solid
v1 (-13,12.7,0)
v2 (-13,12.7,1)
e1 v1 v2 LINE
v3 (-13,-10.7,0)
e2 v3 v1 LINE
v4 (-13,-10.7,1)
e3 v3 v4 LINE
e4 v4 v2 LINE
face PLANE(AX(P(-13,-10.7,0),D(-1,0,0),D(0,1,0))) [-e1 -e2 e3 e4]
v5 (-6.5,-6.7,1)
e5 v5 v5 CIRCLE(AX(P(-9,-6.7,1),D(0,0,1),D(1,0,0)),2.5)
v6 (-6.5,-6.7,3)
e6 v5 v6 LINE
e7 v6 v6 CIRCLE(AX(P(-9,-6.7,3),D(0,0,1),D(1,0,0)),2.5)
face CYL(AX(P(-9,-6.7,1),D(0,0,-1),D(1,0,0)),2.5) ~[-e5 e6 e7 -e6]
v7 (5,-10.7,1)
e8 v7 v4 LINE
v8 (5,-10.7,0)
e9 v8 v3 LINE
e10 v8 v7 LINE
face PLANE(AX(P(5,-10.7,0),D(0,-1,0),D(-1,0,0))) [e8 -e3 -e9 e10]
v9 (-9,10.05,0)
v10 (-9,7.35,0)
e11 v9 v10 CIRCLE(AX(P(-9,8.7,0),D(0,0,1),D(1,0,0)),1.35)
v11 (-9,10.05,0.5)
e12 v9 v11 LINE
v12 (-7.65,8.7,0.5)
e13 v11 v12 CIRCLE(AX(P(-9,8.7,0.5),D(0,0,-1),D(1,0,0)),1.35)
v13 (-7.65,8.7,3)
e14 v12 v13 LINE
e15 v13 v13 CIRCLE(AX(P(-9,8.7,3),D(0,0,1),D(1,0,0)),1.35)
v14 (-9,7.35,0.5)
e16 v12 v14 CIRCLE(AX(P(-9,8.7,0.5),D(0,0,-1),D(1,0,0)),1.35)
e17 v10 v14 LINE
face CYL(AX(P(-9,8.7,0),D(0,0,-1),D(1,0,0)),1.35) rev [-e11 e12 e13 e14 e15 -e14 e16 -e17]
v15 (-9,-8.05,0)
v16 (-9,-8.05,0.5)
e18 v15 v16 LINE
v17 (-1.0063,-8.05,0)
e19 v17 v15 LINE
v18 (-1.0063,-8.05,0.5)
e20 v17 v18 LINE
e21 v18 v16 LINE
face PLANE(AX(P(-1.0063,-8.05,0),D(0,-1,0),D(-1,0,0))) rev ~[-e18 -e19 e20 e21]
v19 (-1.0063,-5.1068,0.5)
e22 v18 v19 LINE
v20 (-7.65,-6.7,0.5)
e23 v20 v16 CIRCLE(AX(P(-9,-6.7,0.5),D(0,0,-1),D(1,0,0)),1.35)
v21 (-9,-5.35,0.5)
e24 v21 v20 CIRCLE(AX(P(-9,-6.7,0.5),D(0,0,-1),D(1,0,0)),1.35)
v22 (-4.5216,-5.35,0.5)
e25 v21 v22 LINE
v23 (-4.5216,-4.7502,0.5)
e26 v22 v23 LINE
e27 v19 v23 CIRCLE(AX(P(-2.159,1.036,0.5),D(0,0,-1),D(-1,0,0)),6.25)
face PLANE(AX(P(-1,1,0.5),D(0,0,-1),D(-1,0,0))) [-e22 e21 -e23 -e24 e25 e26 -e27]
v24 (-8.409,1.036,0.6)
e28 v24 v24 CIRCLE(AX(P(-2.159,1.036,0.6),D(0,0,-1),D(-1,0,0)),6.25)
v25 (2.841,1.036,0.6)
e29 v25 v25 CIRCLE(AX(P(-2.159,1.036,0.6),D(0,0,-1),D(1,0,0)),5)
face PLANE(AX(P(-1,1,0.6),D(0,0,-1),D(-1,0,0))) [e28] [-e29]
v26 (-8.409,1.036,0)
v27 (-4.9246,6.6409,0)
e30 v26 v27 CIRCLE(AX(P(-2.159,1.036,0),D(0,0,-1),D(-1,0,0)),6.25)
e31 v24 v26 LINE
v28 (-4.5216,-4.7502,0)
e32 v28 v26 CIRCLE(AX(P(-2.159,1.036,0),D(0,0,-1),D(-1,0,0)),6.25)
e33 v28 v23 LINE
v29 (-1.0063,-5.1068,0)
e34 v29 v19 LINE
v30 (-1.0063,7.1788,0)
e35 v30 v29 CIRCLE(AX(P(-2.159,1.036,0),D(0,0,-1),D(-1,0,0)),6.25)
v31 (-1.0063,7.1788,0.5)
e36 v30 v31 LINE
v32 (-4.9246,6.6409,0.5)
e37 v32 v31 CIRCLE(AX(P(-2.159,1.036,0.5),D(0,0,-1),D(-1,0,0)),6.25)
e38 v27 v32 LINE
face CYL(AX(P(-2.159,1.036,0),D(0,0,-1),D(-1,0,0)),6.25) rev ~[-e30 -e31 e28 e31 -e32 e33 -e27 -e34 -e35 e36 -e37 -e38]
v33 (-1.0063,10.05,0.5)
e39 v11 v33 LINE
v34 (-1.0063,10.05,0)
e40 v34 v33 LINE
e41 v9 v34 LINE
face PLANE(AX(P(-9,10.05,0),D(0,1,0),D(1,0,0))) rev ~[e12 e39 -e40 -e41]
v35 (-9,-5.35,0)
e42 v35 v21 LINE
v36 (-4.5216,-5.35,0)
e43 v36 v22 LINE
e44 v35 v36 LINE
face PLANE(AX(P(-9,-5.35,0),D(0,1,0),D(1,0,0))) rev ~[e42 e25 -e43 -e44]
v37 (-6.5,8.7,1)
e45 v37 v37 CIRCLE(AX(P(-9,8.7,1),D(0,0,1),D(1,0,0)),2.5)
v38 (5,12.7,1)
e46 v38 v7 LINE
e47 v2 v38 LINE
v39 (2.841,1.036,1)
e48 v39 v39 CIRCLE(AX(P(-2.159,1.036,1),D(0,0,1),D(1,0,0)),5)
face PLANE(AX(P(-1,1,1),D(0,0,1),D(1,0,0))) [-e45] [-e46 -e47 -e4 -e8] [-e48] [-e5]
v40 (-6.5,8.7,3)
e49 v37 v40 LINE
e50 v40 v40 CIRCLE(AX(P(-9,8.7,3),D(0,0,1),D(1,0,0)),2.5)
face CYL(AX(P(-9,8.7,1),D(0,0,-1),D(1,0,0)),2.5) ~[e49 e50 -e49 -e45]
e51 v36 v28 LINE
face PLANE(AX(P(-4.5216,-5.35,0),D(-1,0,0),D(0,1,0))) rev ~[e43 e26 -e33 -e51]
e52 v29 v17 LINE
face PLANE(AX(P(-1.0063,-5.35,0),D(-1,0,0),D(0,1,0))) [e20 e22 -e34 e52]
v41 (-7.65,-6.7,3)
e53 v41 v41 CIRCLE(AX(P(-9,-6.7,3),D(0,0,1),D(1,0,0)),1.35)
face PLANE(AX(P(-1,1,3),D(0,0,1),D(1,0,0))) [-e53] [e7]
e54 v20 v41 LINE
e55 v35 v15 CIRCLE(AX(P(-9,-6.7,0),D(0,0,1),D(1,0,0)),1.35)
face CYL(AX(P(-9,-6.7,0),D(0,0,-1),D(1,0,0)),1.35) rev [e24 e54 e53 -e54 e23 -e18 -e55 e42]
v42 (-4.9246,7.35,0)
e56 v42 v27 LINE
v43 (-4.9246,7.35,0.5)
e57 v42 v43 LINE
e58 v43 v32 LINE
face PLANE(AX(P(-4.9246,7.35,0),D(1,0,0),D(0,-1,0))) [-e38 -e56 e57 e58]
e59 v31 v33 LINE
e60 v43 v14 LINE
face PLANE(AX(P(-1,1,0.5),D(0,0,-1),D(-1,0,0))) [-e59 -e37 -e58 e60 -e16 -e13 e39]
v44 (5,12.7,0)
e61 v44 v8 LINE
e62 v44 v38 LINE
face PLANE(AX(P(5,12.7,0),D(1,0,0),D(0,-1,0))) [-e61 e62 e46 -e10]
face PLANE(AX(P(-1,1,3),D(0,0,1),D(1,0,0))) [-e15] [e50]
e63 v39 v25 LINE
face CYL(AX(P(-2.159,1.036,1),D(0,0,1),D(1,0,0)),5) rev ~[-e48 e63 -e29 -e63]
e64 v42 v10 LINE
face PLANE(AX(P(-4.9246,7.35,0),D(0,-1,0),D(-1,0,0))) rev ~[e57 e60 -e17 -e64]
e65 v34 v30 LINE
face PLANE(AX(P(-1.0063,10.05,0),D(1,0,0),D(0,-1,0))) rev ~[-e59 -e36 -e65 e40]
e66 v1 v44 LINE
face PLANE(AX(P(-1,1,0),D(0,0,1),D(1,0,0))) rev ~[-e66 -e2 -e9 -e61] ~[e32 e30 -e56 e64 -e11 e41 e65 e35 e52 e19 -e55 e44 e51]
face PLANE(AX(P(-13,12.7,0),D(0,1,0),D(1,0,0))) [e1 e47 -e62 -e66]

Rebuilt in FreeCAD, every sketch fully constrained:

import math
import FreeCAD as App
import Part
import Sketcher

V = App.Vector


def add_polygon(sketch, points):
    """Adds a closed chain of lines whose ends are joined by coincident constraints."""
    first, n = sketch.GeometryCount, len(points)
    for a, b in zip(points, points[1:] + points[:1]):
        sketch.addGeometry(Part.LineSegment(App.Vector(*a, 0), App.Vector(*b, 0)), False)
    for i in range(n):
        sketch.addConstraint(Sketcher.Constraint("Coincident", first + i, 2, first + (i + 1) % n, 1))

doc = App.newDocument("Part")
body = doc.addObject("PartDesign::Body", "Body")

# Sketch on XY plane
sketch1 = body.newObject("Sketcher::SketchObject", "Sketch")
sketch1.AttachmentSupport = (doc.getObject("XY_Plane"), [""])
sketch1.MapMode = "FlatFace"
add_polygon(sketch1, [(5, 12.7), (-13, 12.7), (-13, -10.7), (5, -10.7)])  # lines 0-3
sketch1.addGeometry(Part.Circle(V(-9, -6.7, 0), V(0, 0, 1), 1.4), False)  # 4
sketch1.addGeometry(Part.Circle(V(-9, 8.7, 0), V(0, 0, 1), 1.4), False)  # 5
sketch1.addConstraint([
    Sketcher.Constraint("Horizontal", 0),
    Sketcher.Constraint("Vertical", 1),
    Sketcher.Constraint("Horizontal", 2),
    Sketcher.Constraint("Vertical", 3),
    Sketcher.Constraint("Equal", 4, 5),
    Sketcher.Constraint("Vertical", 4, 3, 5, 3),
    Sketcher.Constraint("DistanceX", 0, 2, 0, 1, 18.0),
    Sketcher.Constraint("DistanceX", 0, 2, 5, 3, 4.0),
    Sketcher.Constraint("DistanceY", 5, 3, 0, 2, 4.0),
    Sketcher.Constraint("DistanceY", 1, 2, 4, 3, 4.0),
    Sketcher.Constraint("Diameter", 4, 2.7),
    Sketcher.Constraint("DistanceY", 1, 2, 1, 1, 23.4),
    Sketcher.Constraint("DistanceX", 4, 3, -1, 1, 9.0),
    Sketcher.Constraint("DistanceY", 4, 3, -1, 1, 6.7),
])
pad1 = body.newObject("PartDesign::Pad", "Pad")
pad1.Profile = sketch1
pad1.Length = 1

# Sketch on XY plane
sketch2 = body.newObject("Sketcher::SketchObject", "Sketch001")
sketch2.AttachmentSupport = (doc.getObject("XY_Plane"), [""])
sketch2.MapMode = "FlatFace"
sketch2.AttachmentOffset = App.Placement(V(0, 0, 1), App.Rotation())
sketch2.addGeometry(Part.Circle(V(-2, 1, 0), V(0, 0, 1), 5), False)
sketch2.addConstraint([
    Sketcher.Constraint("Diameter", 0, 10.0),
    Sketcher.Constraint("DistanceX", 0, 3, -1, 1, 2.159),
    Sketcher.Constraint("DistanceY", -1, 1, 0, 3, 1.036),
])
pocket1 = body.newObject("PartDesign::Pocket", "Pocket")
pocket1.Profile = sketch2
pocket1.Type = "ThroughAll"

# Sketch on XY plane
sketch3 = body.newObject("Sketcher::SketchObject", "Sketch002")
sketch3.AttachmentSupport = (doc.getObject("XY_Plane"), [""])
sketch3.MapMode = "FlatFace"
sketch3.addGeometry([
    Part.Circle(V(-2, 1, 0), V(0, 0, 1), 6),
    Part.Circle(V(-2, 1, 0), V(0, 0, 1), 5),
], False)
sketch3.addConstraint([
    Sketcher.Constraint("Coincident", 1, 3, 0, 3),
    Sketcher.Constraint("Diameter", 0, 12.5),
    Sketcher.Constraint("Diameter", 1, 10.0),
    Sketcher.Constraint("DistanceX", 0, 3, -1, 1, 2.159),
    Sketcher.Constraint("DistanceY", -1, 1, 0, 3, 1.036),
])
pocket2 = body.newObject("PartDesign::Pocket", "Pocket001")
pocket2.Profile = sketch3
pocket2.Length = 0.6
pocket2.Reversed = True

# Sketch on XY plane
sketch4 = body.newObject("Sketcher::SketchObject", "Sketch003")
sketch4.AttachmentSupport = (doc.getObject("XY_Plane"), [""])
sketch4.MapMode = "FlatFace"
sketch4.addGeometry([
    Part.LineSegment(V(-9, 7.3, 0), V(-9, 10.1, 0)),  # 0
    Part.LineSegment(V(-9, 10.1, 0), V(-1, 10.1, 0)),  # 1
    Part.LineSegment(V(-1, 10.1, 0), V(-1, 7.2, 0)),  # 2
    Part.ArcOfCircle(Part.Circle(V(-2.2, 1, 0), V(0, 0, 1), 6.2), math.radians(-79), math.radians(79)),  # 3
    Part.LineSegment(V(-1, -5.1, 0), V(-1, -8.1, 0)),  # 4
    Part.LineSegment(V(-1, -8.1, 0), V(-9, -8.1, 0)),  # 5
    Part.LineSegment(V(-9, -8.1, 0), V(-9, -5.3, 0)),  # 6
    Part.LineSegment(V(-9, -5.3, 0), V(-4.5, -5.3, 0)),  # 7
    Part.LineSegment(V(-4.5, -5.3, 0), V(-4.5, -4.8, 0)),  # 8
    Part.ArcOfCircle(Part.Circle(V(-2.2, 1, 0), V(0, 0, 1), 6.2), math.radians(116), math.radians(248)),  # 9
    Part.LineSegment(V(-4.9, 6.6, 0), V(-4.9, 7.3, 0)),  # 10
    Part.LineSegment(V(-4.9, 7.3, 0), V(-9, 7.3, 0)),  # 11
], False)
sketch4.addConstraint([
    Sketcher.Constraint("Coincident", 0, 2, 1, 1),
    Sketcher.Constraint("Coincident", 1, 2, 2, 1),
    Sketcher.Constraint("Coincident", 2, 2, 3, 2),
    Sketcher.Constraint("Coincident", 3, 1, 4, 1),
    Sketcher.Constraint("Coincident", 4, 2, 5, 1),
    Sketcher.Constraint("Coincident", 5, 2, 6, 1),
    Sketcher.Constraint("Coincident", 6, 2, 7, 1),
    Sketcher.Constraint("Coincident", 7, 2, 8, 1),
    Sketcher.Constraint("Coincident", 8, 2, 9, 2),
    Sketcher.Constraint("Coincident", 9, 1, 10, 1),
    Sketcher.Constraint("Coincident", 10, 2, 11, 1),
    Sketcher.Constraint("Coincident", 11, 2, 0, 1),
    Sketcher.Constraint("Vertical", 0),
    Sketcher.Constraint("Horizontal", 1),
    Sketcher.Constraint("Vertical", 2),
    Sketcher.Constraint("Vertical", 4),
    Sketcher.Constraint("Horizontal", 5),
    Sketcher.Constraint("Vertical", 6),
    Sketcher.Constraint("Horizontal", 7),
    Sketcher.Constraint("Vertical", 8),
    Sketcher.Constraint("Vertical", 10),
    Sketcher.Constraint("Horizontal", 11),
    Sketcher.Constraint("Coincident", 9, 3, 3, 3),
    Sketcher.Constraint("Equal", 3, 9),
    Sketcher.Constraint("Vertical", 2, 2, 3, 1),
    Sketcher.Constraint("Vertical", 0, 2, 5, 2),
    Sketcher.Constraint("Equal", 0, 6),
    Sketcher.Constraint("Radius", 3, 6.25),
    Sketcher.Constraint("DistanceY", 0, 1, 0, 2, 2.7),
    Sketcher.Constraint("DistanceX", 0, 2, -1, 1, 9.0),
    Sketcher.Constraint("DistanceY", 4, 2, 1, 2, 18.1),
    Sketcher.Constraint("DistanceY", 10, 1, 10, 2, 0.709),
    Sketcher.Constraint("DistanceY", -1, 1, 0, 2, 10.05),
    Sketcher.Constraint("DistanceX", 1, 1, 1, 2, 7.9937),
    Sketcher.Constraint("DistanceX", 7, 1, 7, 2, 4.4784),
    Sketcher.Constraint("DistanceX", 11, 2, 11, 1, 4.0754),
    Sketcher.Constraint("DistanceY", 2, 2, 2, 1, 2.8712),
])
pocket3 = body.newObject("PartDesign::Pocket", "Pocket002")
pocket3.Profile = sketch4
pocket3.Length = 0.5
pocket3.Reversed = True

# Sketch on XY plane
sketch5 = body.newObject("Sketcher::SketchObject", "Sketch004")
sketch5.AttachmentSupport = (doc.getObject("XY_Plane"), [""])
sketch5.MapMode = "FlatFace"
sketch5.AttachmentOffset = App.Placement(V(0, 0, 1), App.Rotation())
sketch5.addGeometry([
    Part.Circle(V(-9, 8.7, 0), V(0, 0, 1), 2.5),
    Part.Circle(V(-9, 8.7, 0), V(0, 0, 1), 1.4),
    Part.Circle(V(-9, -6.7, 0), V(0, 0, 1), 2.5),
    Part.Circle(V(-9, -6.7, 0), V(0, 0, 1), 1.4),
], False)
sketch5.addConstraint([
    Sketcher.Constraint("Coincident", 1, 3, 0, 3),
    Sketcher.Constraint("Coincident", 3, 3, 2, 3),
    Sketcher.Constraint("Equal", 0, 2),
    Sketcher.Constraint("Equal", 1, 3),
    Sketcher.Constraint("Vertical", 1, 3, 2, 3),
    Sketcher.Constraint("Diameter", 0, 5.0),
    Sketcher.Constraint("Diameter", 1, 2.7),
    Sketcher.Constraint("DistanceX", 0, 3, -1, 1, 9.0),
    Sketcher.Constraint("DistanceY", -1, 1, 0, 3, 8.7),
    Sketcher.Constraint("DistanceY", 2, 3, -1, 1, 6.7),
])
pad2 = body.newObject("PartDesign::Pad", "Pad001")
pad2.Profile = sketch5
pad2.Length = 2

doc.recompute()
